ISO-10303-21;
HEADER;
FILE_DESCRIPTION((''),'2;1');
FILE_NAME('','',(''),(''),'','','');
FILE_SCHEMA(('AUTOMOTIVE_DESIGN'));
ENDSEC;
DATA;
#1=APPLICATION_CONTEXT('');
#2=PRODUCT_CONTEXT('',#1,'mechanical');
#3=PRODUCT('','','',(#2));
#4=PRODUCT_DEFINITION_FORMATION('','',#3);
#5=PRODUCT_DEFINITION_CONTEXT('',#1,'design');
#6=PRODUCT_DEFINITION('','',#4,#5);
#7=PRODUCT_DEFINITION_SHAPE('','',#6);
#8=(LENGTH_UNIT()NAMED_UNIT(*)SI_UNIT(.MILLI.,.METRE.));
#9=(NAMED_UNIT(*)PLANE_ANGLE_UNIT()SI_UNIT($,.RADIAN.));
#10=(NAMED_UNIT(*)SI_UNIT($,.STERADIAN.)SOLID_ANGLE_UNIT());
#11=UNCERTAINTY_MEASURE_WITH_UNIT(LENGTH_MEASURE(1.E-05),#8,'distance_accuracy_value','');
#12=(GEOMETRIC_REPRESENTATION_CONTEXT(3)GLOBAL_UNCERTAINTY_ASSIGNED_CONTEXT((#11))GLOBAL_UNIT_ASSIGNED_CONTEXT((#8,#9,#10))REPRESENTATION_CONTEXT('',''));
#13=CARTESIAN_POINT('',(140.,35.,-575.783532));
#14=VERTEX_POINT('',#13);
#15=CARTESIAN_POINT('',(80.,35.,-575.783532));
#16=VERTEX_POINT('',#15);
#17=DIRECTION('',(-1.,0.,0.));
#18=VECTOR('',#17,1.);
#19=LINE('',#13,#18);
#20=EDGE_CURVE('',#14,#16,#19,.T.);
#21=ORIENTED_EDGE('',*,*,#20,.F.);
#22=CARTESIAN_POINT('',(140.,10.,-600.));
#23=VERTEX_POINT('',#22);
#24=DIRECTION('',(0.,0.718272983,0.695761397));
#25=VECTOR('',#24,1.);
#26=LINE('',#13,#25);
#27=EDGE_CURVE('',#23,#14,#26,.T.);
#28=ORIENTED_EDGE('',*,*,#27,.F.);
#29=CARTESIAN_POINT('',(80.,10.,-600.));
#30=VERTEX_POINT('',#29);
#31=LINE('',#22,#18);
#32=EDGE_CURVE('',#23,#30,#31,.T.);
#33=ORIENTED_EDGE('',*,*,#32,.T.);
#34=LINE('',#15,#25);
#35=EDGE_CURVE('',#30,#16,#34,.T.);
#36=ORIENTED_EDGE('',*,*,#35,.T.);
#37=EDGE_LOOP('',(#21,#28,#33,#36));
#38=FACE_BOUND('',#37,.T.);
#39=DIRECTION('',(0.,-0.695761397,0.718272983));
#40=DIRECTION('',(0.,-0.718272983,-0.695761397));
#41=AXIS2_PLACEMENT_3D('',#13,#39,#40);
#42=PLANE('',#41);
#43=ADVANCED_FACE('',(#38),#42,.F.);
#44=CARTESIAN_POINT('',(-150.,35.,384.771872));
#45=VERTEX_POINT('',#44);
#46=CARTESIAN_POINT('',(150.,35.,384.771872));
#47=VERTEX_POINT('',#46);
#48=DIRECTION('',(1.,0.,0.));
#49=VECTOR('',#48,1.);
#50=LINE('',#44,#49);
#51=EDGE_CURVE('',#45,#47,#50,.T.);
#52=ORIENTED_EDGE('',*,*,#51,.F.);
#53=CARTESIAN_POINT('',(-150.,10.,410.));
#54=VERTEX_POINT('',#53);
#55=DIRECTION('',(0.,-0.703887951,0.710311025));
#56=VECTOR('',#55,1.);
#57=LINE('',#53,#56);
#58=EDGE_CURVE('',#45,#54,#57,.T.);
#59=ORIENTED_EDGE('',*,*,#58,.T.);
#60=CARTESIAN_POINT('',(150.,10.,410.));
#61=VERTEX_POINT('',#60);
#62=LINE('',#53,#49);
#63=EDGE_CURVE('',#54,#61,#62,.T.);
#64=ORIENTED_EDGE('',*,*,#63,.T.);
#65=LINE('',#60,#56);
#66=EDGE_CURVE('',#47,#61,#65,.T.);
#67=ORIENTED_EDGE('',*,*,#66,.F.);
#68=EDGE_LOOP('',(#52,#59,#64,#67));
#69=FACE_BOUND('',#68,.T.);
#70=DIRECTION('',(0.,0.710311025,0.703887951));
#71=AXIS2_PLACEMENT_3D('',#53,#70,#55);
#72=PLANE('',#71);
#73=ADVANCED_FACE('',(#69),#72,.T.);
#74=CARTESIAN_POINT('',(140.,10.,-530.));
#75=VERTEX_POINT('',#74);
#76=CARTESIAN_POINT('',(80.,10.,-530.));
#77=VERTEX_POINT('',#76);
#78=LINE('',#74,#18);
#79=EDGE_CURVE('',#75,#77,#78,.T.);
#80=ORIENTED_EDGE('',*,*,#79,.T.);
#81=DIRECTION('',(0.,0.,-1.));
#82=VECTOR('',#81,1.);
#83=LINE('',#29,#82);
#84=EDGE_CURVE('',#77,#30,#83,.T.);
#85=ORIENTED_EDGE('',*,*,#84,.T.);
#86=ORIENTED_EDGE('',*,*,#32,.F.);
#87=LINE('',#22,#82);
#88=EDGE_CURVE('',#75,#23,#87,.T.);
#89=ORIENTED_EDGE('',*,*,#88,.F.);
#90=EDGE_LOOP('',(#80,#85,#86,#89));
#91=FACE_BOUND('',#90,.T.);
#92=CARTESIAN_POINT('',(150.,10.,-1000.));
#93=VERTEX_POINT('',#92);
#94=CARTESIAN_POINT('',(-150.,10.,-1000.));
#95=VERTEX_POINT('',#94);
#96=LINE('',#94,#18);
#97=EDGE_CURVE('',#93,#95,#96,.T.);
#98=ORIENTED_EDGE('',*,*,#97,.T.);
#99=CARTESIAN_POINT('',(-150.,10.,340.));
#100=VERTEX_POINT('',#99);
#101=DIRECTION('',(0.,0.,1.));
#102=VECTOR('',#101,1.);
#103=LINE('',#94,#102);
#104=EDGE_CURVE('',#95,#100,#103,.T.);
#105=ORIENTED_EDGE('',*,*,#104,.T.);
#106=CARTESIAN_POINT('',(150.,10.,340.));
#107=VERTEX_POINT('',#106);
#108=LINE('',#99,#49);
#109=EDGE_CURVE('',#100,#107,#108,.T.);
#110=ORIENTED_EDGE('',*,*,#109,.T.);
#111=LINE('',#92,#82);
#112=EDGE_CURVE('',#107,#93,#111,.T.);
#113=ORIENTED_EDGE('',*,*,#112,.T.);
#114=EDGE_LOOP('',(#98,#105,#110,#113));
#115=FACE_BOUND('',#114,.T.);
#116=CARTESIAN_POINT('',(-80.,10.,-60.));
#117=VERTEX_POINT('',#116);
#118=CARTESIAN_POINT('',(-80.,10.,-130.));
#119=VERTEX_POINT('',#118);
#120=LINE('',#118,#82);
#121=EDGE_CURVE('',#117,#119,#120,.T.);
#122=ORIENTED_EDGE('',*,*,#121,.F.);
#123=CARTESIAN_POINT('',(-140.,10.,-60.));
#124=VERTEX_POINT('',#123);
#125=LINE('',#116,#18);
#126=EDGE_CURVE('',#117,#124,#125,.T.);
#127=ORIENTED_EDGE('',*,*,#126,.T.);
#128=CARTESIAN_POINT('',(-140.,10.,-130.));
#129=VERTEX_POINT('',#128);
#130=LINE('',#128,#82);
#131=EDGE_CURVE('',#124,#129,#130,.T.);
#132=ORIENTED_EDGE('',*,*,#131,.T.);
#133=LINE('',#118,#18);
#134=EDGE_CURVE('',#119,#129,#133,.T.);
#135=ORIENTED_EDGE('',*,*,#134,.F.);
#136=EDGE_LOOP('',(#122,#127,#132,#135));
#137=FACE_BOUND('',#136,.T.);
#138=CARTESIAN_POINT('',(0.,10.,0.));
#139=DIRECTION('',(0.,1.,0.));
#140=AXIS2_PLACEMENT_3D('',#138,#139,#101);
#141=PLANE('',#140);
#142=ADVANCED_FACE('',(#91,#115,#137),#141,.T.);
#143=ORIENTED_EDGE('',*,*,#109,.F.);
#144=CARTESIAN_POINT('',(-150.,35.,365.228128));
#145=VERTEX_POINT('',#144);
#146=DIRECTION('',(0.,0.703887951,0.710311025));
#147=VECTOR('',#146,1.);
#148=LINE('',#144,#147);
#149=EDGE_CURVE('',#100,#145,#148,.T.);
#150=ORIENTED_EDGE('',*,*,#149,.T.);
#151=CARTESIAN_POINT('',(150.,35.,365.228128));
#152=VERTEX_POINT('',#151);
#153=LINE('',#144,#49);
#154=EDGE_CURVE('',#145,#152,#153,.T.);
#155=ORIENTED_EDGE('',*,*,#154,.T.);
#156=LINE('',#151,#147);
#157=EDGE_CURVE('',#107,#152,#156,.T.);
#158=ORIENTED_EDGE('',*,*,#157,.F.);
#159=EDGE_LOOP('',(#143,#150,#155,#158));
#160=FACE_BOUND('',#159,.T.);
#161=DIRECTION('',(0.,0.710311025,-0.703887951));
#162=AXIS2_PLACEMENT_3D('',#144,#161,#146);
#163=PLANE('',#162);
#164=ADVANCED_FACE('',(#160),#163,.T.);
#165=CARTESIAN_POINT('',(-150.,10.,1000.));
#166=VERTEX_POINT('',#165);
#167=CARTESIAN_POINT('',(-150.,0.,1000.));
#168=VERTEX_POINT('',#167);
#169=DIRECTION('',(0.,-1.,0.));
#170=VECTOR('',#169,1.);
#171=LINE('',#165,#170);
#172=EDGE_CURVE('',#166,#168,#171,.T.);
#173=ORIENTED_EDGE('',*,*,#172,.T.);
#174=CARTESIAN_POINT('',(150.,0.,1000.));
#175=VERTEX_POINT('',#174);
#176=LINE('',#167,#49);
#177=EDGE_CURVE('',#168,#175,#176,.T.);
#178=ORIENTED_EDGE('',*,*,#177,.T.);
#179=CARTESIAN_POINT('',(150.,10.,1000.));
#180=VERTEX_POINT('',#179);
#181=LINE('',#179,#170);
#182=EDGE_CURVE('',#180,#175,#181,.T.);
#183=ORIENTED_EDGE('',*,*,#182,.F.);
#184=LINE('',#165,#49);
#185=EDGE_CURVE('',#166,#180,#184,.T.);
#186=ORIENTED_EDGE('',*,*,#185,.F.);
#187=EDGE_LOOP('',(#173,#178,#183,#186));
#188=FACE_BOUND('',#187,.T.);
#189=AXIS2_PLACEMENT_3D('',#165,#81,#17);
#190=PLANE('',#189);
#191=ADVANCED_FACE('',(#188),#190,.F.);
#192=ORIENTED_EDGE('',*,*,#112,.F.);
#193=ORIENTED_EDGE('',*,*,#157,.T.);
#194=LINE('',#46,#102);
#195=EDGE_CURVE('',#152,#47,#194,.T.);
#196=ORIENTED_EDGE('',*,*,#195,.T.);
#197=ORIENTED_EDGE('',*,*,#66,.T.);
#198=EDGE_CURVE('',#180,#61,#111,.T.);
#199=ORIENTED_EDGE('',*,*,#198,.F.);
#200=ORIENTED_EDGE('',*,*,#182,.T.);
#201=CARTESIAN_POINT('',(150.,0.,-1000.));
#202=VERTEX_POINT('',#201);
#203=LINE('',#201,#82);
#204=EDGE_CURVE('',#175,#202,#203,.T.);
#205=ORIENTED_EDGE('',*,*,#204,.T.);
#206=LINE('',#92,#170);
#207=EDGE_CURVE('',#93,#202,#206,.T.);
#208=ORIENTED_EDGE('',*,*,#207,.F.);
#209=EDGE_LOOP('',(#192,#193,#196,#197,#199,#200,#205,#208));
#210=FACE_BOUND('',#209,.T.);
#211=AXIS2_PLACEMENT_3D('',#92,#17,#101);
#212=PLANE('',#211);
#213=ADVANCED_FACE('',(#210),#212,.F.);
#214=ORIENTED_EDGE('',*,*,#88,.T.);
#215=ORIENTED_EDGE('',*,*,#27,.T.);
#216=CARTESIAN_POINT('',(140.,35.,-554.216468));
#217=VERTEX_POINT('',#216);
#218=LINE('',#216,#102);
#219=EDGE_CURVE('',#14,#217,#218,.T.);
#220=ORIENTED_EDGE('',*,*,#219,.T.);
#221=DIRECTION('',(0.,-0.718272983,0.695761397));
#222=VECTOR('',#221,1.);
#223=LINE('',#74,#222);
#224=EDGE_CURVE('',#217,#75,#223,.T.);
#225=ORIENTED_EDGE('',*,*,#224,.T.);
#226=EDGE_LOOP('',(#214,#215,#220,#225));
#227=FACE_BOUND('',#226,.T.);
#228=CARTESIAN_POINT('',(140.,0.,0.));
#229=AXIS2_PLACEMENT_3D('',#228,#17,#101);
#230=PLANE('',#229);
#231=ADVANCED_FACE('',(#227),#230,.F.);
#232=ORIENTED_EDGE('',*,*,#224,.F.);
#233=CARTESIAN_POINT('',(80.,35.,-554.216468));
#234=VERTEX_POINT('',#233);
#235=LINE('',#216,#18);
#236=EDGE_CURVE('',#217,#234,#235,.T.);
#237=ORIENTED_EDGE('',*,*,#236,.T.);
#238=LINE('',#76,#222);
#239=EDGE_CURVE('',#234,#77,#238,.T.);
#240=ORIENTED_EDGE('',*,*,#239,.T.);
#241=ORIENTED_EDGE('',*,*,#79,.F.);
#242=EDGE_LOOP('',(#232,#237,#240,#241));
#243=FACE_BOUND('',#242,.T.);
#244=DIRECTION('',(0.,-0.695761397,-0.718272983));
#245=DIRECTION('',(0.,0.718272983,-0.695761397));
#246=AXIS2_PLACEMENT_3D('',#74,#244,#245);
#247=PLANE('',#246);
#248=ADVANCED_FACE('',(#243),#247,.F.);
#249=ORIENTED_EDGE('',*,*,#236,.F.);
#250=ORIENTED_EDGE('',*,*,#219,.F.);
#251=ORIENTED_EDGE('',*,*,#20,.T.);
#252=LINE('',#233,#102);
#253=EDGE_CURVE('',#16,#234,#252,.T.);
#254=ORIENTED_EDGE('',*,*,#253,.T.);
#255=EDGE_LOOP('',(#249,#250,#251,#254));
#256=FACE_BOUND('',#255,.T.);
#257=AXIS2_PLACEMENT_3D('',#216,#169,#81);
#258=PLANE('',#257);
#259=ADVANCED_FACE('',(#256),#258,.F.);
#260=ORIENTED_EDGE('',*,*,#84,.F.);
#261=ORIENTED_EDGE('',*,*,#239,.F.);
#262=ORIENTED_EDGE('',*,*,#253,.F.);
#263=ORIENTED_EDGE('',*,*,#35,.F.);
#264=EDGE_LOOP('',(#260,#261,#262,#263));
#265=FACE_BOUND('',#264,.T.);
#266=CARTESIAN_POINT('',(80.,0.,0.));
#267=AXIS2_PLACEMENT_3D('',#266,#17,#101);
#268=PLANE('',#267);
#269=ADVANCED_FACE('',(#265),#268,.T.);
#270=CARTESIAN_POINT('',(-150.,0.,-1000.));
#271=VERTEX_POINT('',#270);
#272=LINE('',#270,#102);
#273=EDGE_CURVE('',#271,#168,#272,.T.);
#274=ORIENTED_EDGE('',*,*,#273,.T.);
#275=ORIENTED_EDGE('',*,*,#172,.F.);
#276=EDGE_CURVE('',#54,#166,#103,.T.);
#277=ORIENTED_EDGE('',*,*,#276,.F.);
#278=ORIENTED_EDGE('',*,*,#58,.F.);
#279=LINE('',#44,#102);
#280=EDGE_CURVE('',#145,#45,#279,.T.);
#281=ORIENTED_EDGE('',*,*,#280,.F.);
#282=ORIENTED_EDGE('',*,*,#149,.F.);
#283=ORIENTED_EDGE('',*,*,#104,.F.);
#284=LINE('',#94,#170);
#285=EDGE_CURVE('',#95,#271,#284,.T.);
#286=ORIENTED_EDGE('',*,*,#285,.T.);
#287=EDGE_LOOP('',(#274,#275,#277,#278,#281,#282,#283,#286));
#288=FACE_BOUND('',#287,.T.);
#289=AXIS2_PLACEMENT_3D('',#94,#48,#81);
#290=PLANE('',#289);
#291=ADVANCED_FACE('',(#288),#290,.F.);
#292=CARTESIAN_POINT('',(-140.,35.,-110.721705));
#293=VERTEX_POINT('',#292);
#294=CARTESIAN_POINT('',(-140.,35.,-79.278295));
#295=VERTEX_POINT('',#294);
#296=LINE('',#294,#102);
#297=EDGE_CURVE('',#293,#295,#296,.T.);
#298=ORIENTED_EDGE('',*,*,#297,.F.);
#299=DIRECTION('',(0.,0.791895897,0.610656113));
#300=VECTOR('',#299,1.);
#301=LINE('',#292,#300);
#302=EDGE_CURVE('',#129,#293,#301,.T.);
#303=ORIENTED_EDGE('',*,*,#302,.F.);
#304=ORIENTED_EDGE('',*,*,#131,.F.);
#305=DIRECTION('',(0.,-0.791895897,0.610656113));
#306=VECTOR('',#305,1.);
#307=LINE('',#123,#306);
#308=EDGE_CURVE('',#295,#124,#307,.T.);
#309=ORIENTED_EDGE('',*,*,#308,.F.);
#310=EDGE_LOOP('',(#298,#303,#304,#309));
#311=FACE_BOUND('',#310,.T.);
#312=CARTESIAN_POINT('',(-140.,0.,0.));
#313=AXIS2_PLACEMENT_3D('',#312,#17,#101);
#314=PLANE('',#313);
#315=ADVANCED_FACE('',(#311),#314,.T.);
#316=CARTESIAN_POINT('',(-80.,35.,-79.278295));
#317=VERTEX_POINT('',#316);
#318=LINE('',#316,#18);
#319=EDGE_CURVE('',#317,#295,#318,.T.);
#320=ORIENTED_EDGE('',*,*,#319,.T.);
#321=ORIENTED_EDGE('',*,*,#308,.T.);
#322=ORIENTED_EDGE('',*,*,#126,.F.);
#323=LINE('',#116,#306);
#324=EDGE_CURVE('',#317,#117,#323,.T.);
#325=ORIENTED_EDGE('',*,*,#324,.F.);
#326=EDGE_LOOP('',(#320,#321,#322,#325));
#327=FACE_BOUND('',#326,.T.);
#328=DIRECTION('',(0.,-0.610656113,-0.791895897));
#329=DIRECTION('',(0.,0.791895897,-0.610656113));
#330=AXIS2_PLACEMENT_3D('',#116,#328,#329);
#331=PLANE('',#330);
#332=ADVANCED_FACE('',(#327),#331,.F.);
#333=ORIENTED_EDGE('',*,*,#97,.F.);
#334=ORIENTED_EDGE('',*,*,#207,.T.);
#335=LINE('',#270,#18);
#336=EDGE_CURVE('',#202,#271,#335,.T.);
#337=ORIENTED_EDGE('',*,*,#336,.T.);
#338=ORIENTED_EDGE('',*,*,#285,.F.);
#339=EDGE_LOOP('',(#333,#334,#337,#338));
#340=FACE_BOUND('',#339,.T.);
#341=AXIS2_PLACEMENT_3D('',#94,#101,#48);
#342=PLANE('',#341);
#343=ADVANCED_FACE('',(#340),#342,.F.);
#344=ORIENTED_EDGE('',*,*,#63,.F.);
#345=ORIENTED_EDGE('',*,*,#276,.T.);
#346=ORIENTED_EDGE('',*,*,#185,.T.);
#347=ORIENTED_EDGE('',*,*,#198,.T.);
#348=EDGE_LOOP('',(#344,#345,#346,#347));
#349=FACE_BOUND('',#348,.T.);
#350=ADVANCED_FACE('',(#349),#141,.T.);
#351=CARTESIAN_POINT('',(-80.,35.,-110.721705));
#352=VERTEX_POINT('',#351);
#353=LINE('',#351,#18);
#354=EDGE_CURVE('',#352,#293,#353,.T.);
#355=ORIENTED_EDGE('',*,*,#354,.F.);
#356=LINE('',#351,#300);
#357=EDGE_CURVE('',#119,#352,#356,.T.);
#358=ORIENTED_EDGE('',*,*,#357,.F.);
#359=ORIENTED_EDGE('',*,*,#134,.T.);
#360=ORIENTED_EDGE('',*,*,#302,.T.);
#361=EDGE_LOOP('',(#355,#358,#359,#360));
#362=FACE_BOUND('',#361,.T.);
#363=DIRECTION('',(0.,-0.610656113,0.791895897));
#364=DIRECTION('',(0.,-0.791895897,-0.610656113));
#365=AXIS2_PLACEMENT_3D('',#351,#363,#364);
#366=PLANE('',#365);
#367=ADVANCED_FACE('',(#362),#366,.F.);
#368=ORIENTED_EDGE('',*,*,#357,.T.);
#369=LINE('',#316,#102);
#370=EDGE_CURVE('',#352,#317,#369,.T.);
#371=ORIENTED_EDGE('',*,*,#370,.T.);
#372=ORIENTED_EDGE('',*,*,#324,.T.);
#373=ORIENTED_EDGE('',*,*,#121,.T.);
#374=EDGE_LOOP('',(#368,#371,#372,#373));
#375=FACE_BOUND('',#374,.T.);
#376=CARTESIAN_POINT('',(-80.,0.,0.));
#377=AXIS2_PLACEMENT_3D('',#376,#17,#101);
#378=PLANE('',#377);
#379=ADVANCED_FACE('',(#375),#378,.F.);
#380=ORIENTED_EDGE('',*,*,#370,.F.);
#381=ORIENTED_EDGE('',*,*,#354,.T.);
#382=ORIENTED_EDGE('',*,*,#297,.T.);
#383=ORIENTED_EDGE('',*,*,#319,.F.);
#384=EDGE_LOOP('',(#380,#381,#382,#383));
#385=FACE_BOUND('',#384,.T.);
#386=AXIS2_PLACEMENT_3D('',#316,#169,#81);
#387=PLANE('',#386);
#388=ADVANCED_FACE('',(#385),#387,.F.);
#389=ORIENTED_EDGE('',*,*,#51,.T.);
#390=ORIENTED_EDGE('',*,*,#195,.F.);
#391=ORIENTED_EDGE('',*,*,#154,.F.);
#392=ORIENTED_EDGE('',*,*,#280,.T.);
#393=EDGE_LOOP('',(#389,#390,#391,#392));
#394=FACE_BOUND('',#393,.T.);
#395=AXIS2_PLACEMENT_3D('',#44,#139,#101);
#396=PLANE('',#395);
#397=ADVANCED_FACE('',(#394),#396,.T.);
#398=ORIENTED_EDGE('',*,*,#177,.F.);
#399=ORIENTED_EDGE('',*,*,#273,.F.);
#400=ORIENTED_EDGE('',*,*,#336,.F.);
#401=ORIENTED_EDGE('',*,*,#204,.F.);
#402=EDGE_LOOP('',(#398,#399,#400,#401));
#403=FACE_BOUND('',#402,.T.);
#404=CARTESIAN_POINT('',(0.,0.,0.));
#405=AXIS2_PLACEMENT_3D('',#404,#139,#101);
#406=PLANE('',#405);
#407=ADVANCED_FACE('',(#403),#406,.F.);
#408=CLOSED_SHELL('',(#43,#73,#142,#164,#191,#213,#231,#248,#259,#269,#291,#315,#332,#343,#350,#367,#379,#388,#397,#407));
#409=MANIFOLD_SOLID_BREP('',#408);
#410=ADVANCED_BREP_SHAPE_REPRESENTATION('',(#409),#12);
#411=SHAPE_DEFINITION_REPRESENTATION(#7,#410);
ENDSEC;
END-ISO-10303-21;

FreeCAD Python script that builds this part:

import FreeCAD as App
import Part
import Sketcher
from FreeCAD import Vector

doc = App.newDocument("Part")
body = doc.addObject("PartDesign::Body", "Body")

sketch1 = doc.addObject("Sketcher::SketchObject", "Sketch")
body.addObject(sketch1)
sketch1.AttachmentSupport = (doc.XZ_Plane, [""])
sketch1.MapMode = "FlatFace"
sketch1.addGeometry(Part.LineSegment(Vector(-150, -1000, 0), Vector(-150, 1000, 0)), False)
sketch1.addGeometry(Part.LineSegment(Vector(-150, 1000, 0), Vector(150, 1000, 0)), False)
sketch1.addGeometry(Part.LineSegment(Vector(150, 1000, 0), Vector(150, -1000, 0)), False)
sketch1.addGeometry(Part.LineSegment(Vector(150, -1000, 0), Vector(-150, -1000, 0)), False)
sketch1.addConstraint(Sketcher.Constraint("Coincident", 0, 2, 1, 1))
sketch1.addConstraint(Sketcher.Constraint("Coincident", 1, 2, 2, 1))
sketch1.addConstraint(Sketcher.Constraint("Coincident", 2, 2, 3, 1))
sketch1.addConstraint(Sketcher.Constraint("Coincident", 3, 2, 0, 1))
sketch1.addConstraint(Sketcher.Constraint("Vertical", 0))
sketch1.addConstraint(Sketcher.Constraint("Horizontal", 1))
sketch1.addConstraint(Sketcher.Constraint("Vertical", 2))
sketch1.addConstraint(Sketcher.Constraint("Horizontal", 3))
sketch1.addConstraint(Sketcher.Constraint("Symmetric", 0, 2, 2, 2, -1, 1))
sketch1.addConstraint(Sketcher.Constraint("DistanceX", 1, 1, 1, 2, 300.0))
sketch1.addConstraint(Sketcher.Constraint("DistanceY", 0, 1, 0, 2, 2000.0))
pad1 = doc.addObject("PartDesign::Pad", "Pad")
body.addObject(pad1)
pad1.Profile = sketch1
pad1.Length = 10
pad1.Reversed = True

sketch2 = doc.addObject("Sketcher::SketchObject", "Sketch001")
body.addObject(sketch2)
sketch2.AttachmentSupport = (doc.YZ_Plane, [""])
sketch2.MapMode = "FlatFace"
sketch2.AttachmentOffset = App.Placement(Vector(0, 0, 80), App.Rotation())
sketch2.addGeometry(Part.LineSegment(Vector(35, -554.216468, 0), Vector(10, -530, 0)), False)
sketch2.addGeometry(Part.LineSegment(Vector(10, -530, 0), Vector(10, -600, 0)), False)
sketch2.addGeometry(Part.LineSegment(Vector(10, -600, 0), Vector(35, -575.783532, 0)), False)
sketch2.addGeometry(Part.LineSegment(Vector(35, -575.783532, 0), Vector(35, -554.216468, 0)), False)
sketch2.addConstraint(Sketcher.Constraint("Coincident", 0, 2, 1, 1))
sketch2.addConstraint(Sketcher.Constraint("Coincident", 1, 2, 2, 1))
sketch2.addConstraint(Sketcher.Constraint("Coincident", 2, 2, 3, 1))
sketch2.addConstraint(Sketcher.Constraint("Coincident", 3, 2, 0, 1))
sketch2.addConstraint(Sketcher.Constraint("Vertical", 1))
sketch2.addConstraint(Sketcher.Constraint("Vertical", 3))
sketch2.addConstraint(Sketcher.Constraint("Equal", 0, 2))
sketch2.addConstraint(Sketcher.Constraint("DistanceY", 1, 2, 1, 1, 70.0))
sketch2.addConstraint(Sketcher.Constraint("DistanceX", -1, 1, 0, 2, 10.0))
sketch2.addConstraint(Sketcher.Constraint("DistanceY", 0, 2, -1, 1, 530.0))
sketch2.addConstraint(Sketcher.Constraint("DistanceX", -1, 1, 2, 2, 35.0))
sketch2.addConstraint(Sketcher.Constraint("Distance", 0, 34.805708))
pad2 = doc.addObject("PartDesign::Pad", "Pad001")
body.addObject(pad2)
pad2.Profile = sketch2
pad2.Length = 60

sketch3 = doc.addObject("Sketcher::SketchObject", "Sketch002")
body.addObject(sketch3)
sketch3.AttachmentSupport = (doc.YZ_Plane, [""])
sketch3.MapMode = "FlatFace"
sketch3.AttachmentOffset = App.Placement(Vector(0, 0, -140), App.Rotation())
sketch3.addGeometry(Part.LineSegment(Vector(35, -79.278295, 0), Vector(10, -60, 0)), False)
sketch3.addGeometry(Part.LineSegment(Vector(10, -60, 0), Vector(10, -130, 0)), False)
sketch3.addGeometry(Part.LineSegment(Vector(10, -130, 0), Vector(35, -110.721705, 0)), False)
sketch3.addGeometry(Part.LineSegment(Vector(35, -110.721705, 0), Vector(35, -79.278295, 0)), False)
sketch3.addConstraint(Sketcher.Constraint("Coincident", 0, 2, 1, 1))
sketch3.addConstraint(Sketcher.Constraint("Coincident", 1, 2, 2, 1))
sketch3.addConstraint(Sketcher.Constraint("Coincident", 2, 2, 3, 1))
sketch3.addConstraint(Sketcher.Constraint("Coincident", 3, 2, 0, 1))
sketch3.addConstraint(Sketcher.Constraint("Vertical", 1))
sketch3.addConstraint(Sketcher.Constraint("Vertical", 3))
sketch3.addConstraint(Sketcher.Constraint("Equal", 0, 2))
sketch3.addConstraint(Sketcher.Constraint("DistanceY", 1, 2, 1, 1, 70.0))
sketch3.addConstraint(Sketcher.Constraint("DistanceX", -1, 1, 0, 2, 10.0))
sketch3.addConstraint(Sketcher.Constraint("DistanceY", 0, 2, -1, 1, 60.0))
sketch3.addConstraint(Sketcher.Constraint("DistanceX", -1, 1, 2, 2, 35.0))
sketch3.addConstraint(Sketcher.Constraint("DistanceY", 3, 1, 3, 2, 31.44341))
pad3 = doc.addObject("PartDesign::Pad", "Pad002")
body.addObject(pad3)
pad3.Profile = sketch3
pad3.Length = 60

sketch4 = doc.addObject("Sketcher::SketchObject", "Sketch003")
body.addObject(sketch4)
sketch4.AttachmentSupport = (doc.YZ_Plane, [""])
sketch4.MapMode = "FlatFace"
sketch4.addGeometry(Part.LineSegment(Vector(35, 384.771872, 0), Vector(10, 410, 0)), False)
sketch4.addGeometry(Part.LineSegment(Vector(10, 410, 0), Vector(10, 340, 0)), False)
sketch4.addGeometry(Part.LineSegment(Vector(10, 340, 0), Vector(35, 365.228128, 0)), False)
sketch4.addGeometry(Part.LineSegment(Vector(35, 365.228128, 0), Vector(35, 384.771872, 0)), False)
sketch4.addConstraint(Sketcher.Constraint("Coincident", 0, 2, 1, 1))
sketch4.addConstraint(Sketcher.Constraint("Coincident", 1, 2, 2, 1))
sketch4.addConstraint(Sketcher.Constraint("Coincident", 2, 2, 3, 1))
sketch4.addConstraint(Sketcher.Constraint("Coincident", 3, 2, 0, 1))
sketch4.addConstraint(Sketcher.Constraint("Vertical", 1))
sketch4.addConstraint(Sketcher.Constraint("Vertical", 3))
sketch4.addConstraint(Sketcher.Constraint("Equal", 0, 2))
sketch4.addConstraint(Sketcher.Constraint("DistanceY", 1, 2, 1, 1, 70.0))
sketch4.addConstraint(Sketcher.Constraint("DistanceX", -1, 1, 0, 2, 10.0))
sketch4.addConstraint(Sketcher.Constraint("DistanceY", -1, 1, 0, 2, 410.0))
sketch4.addConstraint(Sketcher.Constraint("DistanceX", -1, 1, 2, 2, 35.0))
sketch4.addConstraint(Sketcher.Constraint("DistanceY", 3, 1, 3, 2, 19.543743))
pad4 = doc.addObject("PartDesign::Pad", "Pad003")
body.addObject(pad4)
pad4.Profile = sketch4
pad4.Type = "TwoLengths"
pad4.Length = 150
pad4.Length2 = 150

doc.recompute()
